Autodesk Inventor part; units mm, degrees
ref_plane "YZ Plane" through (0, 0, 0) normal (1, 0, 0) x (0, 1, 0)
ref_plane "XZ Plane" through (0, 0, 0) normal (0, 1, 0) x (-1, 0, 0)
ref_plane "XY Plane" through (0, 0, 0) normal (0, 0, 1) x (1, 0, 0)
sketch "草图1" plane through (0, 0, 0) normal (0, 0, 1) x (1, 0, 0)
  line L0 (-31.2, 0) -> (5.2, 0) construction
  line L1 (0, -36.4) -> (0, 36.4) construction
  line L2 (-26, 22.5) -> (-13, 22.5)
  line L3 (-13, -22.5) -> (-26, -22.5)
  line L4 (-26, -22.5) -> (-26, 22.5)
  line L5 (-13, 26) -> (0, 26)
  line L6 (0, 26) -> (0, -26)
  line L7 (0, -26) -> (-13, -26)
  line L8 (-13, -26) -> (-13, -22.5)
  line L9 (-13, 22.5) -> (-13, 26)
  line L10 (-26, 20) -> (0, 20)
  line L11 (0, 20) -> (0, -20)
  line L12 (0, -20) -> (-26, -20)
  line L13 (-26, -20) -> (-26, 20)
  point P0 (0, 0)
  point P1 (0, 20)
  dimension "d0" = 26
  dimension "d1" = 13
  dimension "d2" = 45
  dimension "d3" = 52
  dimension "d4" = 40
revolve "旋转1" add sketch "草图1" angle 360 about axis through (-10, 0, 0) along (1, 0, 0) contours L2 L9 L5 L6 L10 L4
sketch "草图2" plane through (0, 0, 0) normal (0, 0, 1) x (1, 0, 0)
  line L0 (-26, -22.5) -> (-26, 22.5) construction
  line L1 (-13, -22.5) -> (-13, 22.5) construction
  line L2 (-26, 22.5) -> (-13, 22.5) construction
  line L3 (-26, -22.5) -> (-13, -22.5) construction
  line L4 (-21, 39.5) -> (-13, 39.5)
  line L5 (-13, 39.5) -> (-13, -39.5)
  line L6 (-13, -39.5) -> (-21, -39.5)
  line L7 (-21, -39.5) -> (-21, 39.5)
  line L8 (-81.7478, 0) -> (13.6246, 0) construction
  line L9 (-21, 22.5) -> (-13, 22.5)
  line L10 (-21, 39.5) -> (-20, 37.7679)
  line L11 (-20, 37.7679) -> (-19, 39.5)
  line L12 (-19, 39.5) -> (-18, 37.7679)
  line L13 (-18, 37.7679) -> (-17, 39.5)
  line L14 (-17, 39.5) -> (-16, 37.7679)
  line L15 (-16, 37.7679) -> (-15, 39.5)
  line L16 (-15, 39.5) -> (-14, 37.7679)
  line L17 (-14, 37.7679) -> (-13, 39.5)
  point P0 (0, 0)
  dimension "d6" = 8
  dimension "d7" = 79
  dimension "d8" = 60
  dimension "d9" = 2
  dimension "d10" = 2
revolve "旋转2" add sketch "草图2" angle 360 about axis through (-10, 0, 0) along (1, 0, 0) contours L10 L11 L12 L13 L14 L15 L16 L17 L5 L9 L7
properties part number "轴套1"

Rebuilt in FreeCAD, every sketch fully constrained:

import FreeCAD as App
import Part
import Sketcher

doc = App.newDocument("Part")
params = doc.addObject("Spreadsheet::Sheet", "Params")
for row, (alias, value) in enumerate([
    ("sketch1_width", "13 mm"),
    ("sketch1_height", "6 mm"),
    ("sketch1_height2", "2.5 mm"),
    ("revolution_angle", "360 deg"),
    ("sketch2_width", "8 mm"),
    ("sketch2_length", "2 mm"),
    ("sketch2_height", "17 mm"),
    ("revolution2_angle", "360 deg"),
], start=1):
    params.set(f"A{row}", alias)
    params.set(f"B{row}", "=" + value)
    params.setAlias(f"B{row}", alias)

body = doc.addObject("PartDesign::Body", "Body")

sketch1 = body.newObject("Sketcher::SketchObject", "Sketch")
sketch1.AttachmentSupport = (doc.getObject("XY_Plane"), [""])
sketch1.MapMode = "FlatFace"
sketch1.addGeometry([
    Part.LineSegment(App.Vector(-13, 22.5, 0), App.Vector(-26, 22.5, 0)),
    Part.LineSegment(App.Vector(-26, 22.5, 0), App.Vector(-26, 20, 0)),
    Part.LineSegment(App.Vector(-26, 20, 0), App.Vector(0, 20, 0)),
    Part.LineSegment(App.Vector(0, 20, 0), App.Vector(0, 26, 0)),
    Part.LineSegment(App.Vector(0, 26, 0), App.Vector(-13, 26, 0)),
    Part.LineSegment(App.Vector(-13, 26, 0), App.Vector(-13, 22.5, 0)),
], False)
sketch1.addConstraint([
    Sketcher.Constraint("Coincident", 0, 2, 1, 1),
    Sketcher.Constraint("Coincident", 1, 2, 2, 1),
    Sketcher.Constraint("Coincident", 2, 2, 3, 1),
    Sketcher.Constraint("Coincident", 3, 2, 4, 1),
    Sketcher.Constraint("Coincident", 4, 2, 5, 1),
    Sketcher.Constraint("Coincident", 5, 2, 0, 1),
    Sketcher.Constraint("Horizontal", 0),
    Sketcher.Constraint("Vertical", 1),
    Sketcher.Constraint("Horizontal", 2),
    Sketcher.Constraint("Vertical", 3),
    Sketcher.Constraint("Horizontal", 4),
    Sketcher.Constraint("Vertical", 5),
    Sketcher.Constraint("PointOnObject", 2, 2, -2),
    Sketcher.Constraint("Equal", 0, 4),
    Sketcher.Constraint("DistanceX", 0, 2, 0, 1, 13.0),
    Sketcher.Constraint("DistanceY", -1, 1, 3, 2, 26.0),
    Sketcher.Constraint("DistanceY", 3, 1, 3, 2, 6.0),
    Sketcher.Constraint("DistanceY", 1, 2, 1, 1, 2.5),
])
sketch1.setExpression("Constraints[14]", "Params.sketch1_width")
sketch1.setExpression("Constraints[16]", "Params.sketch1_height")
sketch1.setExpression("Constraints[17]", "Params.sketch1_height2")
revolution = body.newObject("PartDesign::Revolution", "Revolution")
revolution.Profile = sketch1
revolution.ReferenceAxis = (sketch1, ["H_Axis"])
revolution.setExpression("Angle", "Params.revolution_angle")

sketch2 = body.newObject("Sketcher::SketchObject", "Sketch001")
sketch2.AttachmentSupport = (doc.getObject("XY_Plane"), [""])
sketch2.MapMode = "FlatFace"
sketch2.addGeometry([
    Part.LineSegment(App.Vector(-20, 37.8, 0), App.Vector(-21, 39.5, 0)),
    Part.LineSegment(App.Vector(-21, 39.5, 0), App.Vector(-21, 22.5, 0)),
    Part.LineSegment(App.Vector(-21, 22.5, 0), App.Vector(-13, 22.5, 0)),
    Part.LineSegment(App.Vector(-13, 22.5, 0), App.Vector(-13, 39.5, 0)),
    Part.LineSegment(App.Vector(-13, 39.5, 0), App.Vector(-14, 37.8, 0)),
    Part.LineSegment(App.Vector(-14, 37.8, 0), App.Vector(-15, 39.5, 0)),
    Part.LineSegment(App.Vector(-15, 39.5, 0), App.Vector(-16, 37.8, 0)),
    Part.LineSegment(App.Vector(-16, 37.8, 0), App.Vector(-17, 39.5, 0)),
    Part.LineSegment(App.Vector(-17, 39.5, 0), App.Vector(-18, 37.8, 0)),
    Part.LineSegment(App.Vector(-18, 37.8, 0), App.Vector(-19, 39.5, 0)),
    Part.LineSegment(App.Vector(-19, 39.5, 0), App.Vector(-20, 37.8, 0)),
], False)
sketch2.addConstraint([
    Sketcher.Constraint("Coincident", 0, 2, 1, 1),
    Sketcher.Constraint("Coincident", 1, 2, 2, 1),
    Sketcher.Constraint("Coincident", 2, 2, 3, 1),
    Sketcher.Constraint("Coincident", 3, 2, 4, 1),
    Sketcher.Constraint("Coincident", 4, 2, 5, 1),
    Sketcher.Constraint("Coincident", 5, 2, 6, 1),
    Sketcher.Constraint("Coincident", 6, 2, 7, 1),
    Sketcher.Constraint("Coincident", 7, 2, 8, 1),
    Sketcher.Constraint("Coincident", 8, 2, 9, 1),
    Sketcher.Constraint("Coincident", 9, 2, 10, 1),
    Sketcher.Constraint("Coincident", 10, 2, 0, 1),
    Sketcher.Constraint("Vertical", 1),
    Sketcher.Constraint("Horizontal", 2),
    Sketcher.Constraint("Vertical", 3),
    Sketcher.Constraint("Parallel", 0, 5),
    Sketcher.Constraint("Parallel", 4, 6),
    Sketcher.Constraint("Parallel", 5, 7),
    Sketcher.Constraint("Parallel", 6, 8),
    Sketcher.Constraint("Parallel", 7, 9),
    Sketcher.Constraint("Parallel", 8, 10),
    Sketcher.Constraint("Horizontal", 0, 2, 3, 2),
    Sketcher.Constraint("Horizontal", 3, 2, 5, 2),
    Sketcher.Constraint("Horizontal", 4, 2, 6, 2),
    Sketcher.Constraint("Horizontal", 5, 2, 7, 2),
    Sketcher.Constraint("Horizontal", 6, 2, 8, 2),
    Sketcher.Constraint("Horizontal", 7, 2, 9, 2),
    Sketcher.Constraint("Horizontal", 8, 2, 10, 2),
    Sketcher.Constraint("Equal", 0, 4),
    Sketcher.Constraint("DistanceX", 2, 1, 2, 2, 8.0),
    Sketcher.Constraint("Distance", 0, 2.0),
    Sketcher.Constraint("DistanceY", 1, 2, 1, 1, 17.0),
    Sketcher.Constraint("DistanceX", 0, 2, -1, 1, 21.0),
    Sketcher.Constraint("DistanceY", -1, 1, 0, 2, 39.5),
])
sketch2.setExpression("Constraints[28]", "Params.sketch2_width")
sketch2.setExpression("Constraints[29]", "Params.sketch2_length")
sketch2.setExpression("Constraints[30]", "Params.sketch2_height")
revolution2 = body.newObject("PartDesign::Revolution", "Revolution001")
revolution2.Profile = sketch2
revolution2.ReferenceAxis = (sketch2, ["H_Axis"])
revolution2.setExpression("Angle", "Params.revolution2_angle")

doc.recompute()
